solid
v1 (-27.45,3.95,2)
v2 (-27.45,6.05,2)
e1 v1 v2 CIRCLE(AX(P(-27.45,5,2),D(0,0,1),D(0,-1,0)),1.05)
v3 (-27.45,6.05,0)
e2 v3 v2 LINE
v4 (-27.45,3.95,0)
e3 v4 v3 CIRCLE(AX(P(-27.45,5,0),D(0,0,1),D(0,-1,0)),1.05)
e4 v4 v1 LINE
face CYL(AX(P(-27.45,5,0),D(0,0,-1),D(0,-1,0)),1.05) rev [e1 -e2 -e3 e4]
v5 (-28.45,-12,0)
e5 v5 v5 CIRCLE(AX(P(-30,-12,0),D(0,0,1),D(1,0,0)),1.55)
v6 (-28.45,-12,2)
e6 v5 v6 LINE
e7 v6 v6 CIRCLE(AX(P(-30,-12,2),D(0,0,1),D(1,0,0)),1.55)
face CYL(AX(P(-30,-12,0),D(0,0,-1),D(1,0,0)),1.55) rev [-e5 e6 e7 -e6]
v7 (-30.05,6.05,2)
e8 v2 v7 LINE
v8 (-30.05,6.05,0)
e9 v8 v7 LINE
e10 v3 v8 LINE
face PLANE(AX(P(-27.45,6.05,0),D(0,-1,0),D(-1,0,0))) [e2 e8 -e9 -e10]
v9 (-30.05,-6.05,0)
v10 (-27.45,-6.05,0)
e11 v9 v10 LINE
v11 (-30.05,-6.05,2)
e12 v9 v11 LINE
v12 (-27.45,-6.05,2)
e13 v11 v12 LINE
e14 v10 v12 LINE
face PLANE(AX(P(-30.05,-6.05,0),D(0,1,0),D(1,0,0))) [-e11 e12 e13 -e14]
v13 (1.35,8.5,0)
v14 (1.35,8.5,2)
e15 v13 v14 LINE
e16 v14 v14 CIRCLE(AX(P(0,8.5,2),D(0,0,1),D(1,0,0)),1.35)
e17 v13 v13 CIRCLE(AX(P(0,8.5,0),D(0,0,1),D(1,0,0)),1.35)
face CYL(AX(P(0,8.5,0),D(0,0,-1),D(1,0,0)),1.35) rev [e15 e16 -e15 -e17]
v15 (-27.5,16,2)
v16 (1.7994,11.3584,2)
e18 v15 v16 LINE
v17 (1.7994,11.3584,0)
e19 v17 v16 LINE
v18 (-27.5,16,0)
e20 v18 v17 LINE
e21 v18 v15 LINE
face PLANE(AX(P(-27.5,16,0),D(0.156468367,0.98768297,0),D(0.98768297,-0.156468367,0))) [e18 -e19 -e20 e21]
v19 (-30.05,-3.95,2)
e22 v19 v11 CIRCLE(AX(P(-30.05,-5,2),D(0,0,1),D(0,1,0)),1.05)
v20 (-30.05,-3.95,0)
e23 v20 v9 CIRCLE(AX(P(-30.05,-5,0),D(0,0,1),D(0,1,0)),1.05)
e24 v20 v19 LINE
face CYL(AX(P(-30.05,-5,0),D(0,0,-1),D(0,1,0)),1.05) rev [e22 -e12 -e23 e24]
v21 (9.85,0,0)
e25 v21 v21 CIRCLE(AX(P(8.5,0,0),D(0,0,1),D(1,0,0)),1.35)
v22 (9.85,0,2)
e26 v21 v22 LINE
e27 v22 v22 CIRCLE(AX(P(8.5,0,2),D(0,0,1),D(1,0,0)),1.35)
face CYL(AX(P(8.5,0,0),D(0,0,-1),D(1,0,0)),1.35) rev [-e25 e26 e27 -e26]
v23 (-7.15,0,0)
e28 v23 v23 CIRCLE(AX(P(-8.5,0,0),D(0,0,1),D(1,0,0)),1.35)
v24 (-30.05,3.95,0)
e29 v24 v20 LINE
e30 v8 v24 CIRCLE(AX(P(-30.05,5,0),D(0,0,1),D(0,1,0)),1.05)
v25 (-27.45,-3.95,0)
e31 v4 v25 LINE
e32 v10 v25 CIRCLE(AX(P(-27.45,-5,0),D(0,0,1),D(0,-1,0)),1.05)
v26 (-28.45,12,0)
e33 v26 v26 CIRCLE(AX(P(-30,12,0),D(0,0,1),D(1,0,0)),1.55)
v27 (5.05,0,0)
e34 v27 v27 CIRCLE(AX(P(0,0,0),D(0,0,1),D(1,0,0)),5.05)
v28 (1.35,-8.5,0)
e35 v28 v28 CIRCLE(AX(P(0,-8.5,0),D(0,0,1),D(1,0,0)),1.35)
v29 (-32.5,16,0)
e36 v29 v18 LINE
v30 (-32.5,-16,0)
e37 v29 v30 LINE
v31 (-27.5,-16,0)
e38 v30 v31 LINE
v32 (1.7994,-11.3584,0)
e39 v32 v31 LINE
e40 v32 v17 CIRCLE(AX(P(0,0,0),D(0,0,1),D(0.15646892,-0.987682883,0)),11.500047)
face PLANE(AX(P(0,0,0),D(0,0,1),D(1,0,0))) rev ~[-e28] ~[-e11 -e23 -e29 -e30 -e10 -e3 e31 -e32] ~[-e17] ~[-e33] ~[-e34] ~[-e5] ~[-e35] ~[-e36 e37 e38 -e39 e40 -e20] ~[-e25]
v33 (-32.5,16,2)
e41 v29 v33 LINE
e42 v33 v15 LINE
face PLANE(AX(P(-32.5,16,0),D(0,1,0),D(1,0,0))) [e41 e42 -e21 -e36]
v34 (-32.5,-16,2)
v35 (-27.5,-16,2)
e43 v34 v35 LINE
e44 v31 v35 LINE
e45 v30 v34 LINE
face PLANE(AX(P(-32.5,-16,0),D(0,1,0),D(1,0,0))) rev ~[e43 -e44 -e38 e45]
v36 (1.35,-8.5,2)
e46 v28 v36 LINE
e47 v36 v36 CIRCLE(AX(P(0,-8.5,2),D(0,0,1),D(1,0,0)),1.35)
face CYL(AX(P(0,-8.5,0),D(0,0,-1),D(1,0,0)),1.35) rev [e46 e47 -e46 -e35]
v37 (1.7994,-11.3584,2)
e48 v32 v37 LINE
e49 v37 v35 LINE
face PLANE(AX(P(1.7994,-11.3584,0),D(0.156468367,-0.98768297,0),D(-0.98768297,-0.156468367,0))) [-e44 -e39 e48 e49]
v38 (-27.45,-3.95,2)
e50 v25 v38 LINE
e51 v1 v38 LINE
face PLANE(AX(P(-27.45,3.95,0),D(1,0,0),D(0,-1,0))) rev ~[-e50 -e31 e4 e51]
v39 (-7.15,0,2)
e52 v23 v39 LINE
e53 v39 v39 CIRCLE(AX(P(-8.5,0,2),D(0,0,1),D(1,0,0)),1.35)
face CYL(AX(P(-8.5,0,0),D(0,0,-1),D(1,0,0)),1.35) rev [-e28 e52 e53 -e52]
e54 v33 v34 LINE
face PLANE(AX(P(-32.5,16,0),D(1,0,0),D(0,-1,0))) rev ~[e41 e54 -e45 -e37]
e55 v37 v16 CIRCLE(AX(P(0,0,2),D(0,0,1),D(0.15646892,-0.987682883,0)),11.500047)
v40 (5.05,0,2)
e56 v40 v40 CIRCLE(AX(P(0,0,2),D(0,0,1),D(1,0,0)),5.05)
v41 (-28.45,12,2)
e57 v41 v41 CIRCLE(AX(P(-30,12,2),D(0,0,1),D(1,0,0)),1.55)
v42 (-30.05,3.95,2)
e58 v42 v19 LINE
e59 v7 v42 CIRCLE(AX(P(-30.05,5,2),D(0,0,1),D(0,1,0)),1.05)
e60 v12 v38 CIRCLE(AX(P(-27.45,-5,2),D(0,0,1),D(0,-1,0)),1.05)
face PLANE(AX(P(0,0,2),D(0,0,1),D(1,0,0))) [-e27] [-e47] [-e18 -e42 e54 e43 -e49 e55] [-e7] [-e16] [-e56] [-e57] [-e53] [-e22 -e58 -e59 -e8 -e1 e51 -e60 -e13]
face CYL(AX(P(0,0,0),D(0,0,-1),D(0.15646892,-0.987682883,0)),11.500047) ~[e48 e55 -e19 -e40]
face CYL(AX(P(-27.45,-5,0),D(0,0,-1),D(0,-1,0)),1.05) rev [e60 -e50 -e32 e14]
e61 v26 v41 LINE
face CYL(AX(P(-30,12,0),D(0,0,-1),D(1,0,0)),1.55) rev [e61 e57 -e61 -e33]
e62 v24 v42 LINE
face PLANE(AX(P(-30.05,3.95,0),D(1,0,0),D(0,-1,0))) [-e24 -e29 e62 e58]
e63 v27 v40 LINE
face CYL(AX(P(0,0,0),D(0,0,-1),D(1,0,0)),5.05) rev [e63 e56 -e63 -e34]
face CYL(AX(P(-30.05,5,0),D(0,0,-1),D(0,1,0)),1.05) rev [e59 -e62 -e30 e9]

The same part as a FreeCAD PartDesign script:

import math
import FreeCAD as App
import Part
import Sketcher
Q = App.Units.Quantity

doc = App.newDocument("Part")
body = doc.addObject("PartDesign::Body", "Body")

# Sketch on XY plane
sketch1 = body.newObject("Sketcher::SketchObject", "Sketch")
sketch1.AttachmentSupport = (doc.getObject("XY_Plane"), [""])
sketch1.MapMode = "FlatFace"
sketch1.addGeometry([
    Part.LineSegment(App.Vector(-27.5, 16, 0), App.Vector(-32.5, 16, 0)),  # 0
    Part.LineSegment(App.Vector(-32.5, 16, 0), App.Vector(-32.5, -16, 0)),  # 1
    Part.LineSegment(App.Vector(-32.5, -16, 0), App.Vector(-27.5, -16, 0)),  # 2
    Part.LineSegment(App.Vector(-27.5, -16, 0), App.Vector(1.8, -11.4, 0)),  # 3
    Part.ArcOfCircle(Part.Circle(App.Vector(0, 0, 0), App.Vector(0, 0, 1), 11.5), math.radians(-81), math.radians(81)),  # 4
    Part.LineSegment(App.Vector(1.8, 11.4, 0), App.Vector(-27.5, 16, 0)),  # 5
    Part.Circle(App.Vector(-30, -12, 0), App.Vector(0, 0, 1), 1.6),  # 6
    Part.Circle(App.Vector(0, -8.5, 0), App.Vector(0, 0, 1), 1.4),  # 7
    Part.LineSegment(App.Vector(-30.1, 6, 0), App.Vector(-27.4, 6, 0)),  # 8
    Part.ArcOfCircle(Part.Circle(App.Vector(-27.4, 5, 0), App.Vector(0, 0, 1), 1), math.radians(-90), math.radians(90)),  # 9
    Part.LineSegment(App.Vector(-27.4, 4, 0), App.Vector(-27.4, -4, 0)),  # 10
    Part.ArcOfCircle(Part.Circle(App.Vector(-27.4, -5, 0), App.Vector(0, 0, 1), 1), math.radians(-90), math.radians(90)),  # 11
    Part.LineSegment(App.Vector(-27.4, -6, 0), App.Vector(-30.1, -6, 0)),  # 12
    Part.ArcOfCircle(Part.Circle(App.Vector(-30.1, -5, 0), App.Vector(0, 0, 1), 1), math.radians(90), math.radians(270)),  # 13
    Part.LineSegment(App.Vector(-30.1, -4, 0), App.Vector(-30.1, 4, 0)),  # 14
    Part.ArcOfCircle(Part.Circle(App.Vector(-30.1, 5, 0), App.Vector(0, 0, 1), 1.1), math.radians(90), math.radians(270)),  # 15
    Part.Circle(App.Vector(-30, 12, 0), App.Vector(0, 0, 1), 1.6),  # 16
    Part.Circle(App.Vector(-8.5, 0, 0), App.Vector(0, 0, 1), 1.4),  # 17
    Part.Circle(App.Vector(0, 0, 0), App.Vector(0, 0, 1), 5),  # 18
    Part.Circle(App.Vector(8.5, 0, 0), App.Vector(0, 0, 1), 1.4),  # 19
    Part.Circle(App.Vector(0, 8.5, 0), App.Vector(0, 0, 1), 1.4),  # 20
], False)
sketch1.addConstraint([
    Sketcher.Constraint("Coincident", 0, 2, 1, 1),
    Sketcher.Constraint("Coincident", 1, 2, 2, 1),
    Sketcher.Constraint("Coincident", 2, 2, 3, 1),
    Sketcher.Constraint("Tangent", 3, 2, 4, 1),
    Sketcher.Constraint("Tangent", 4, 2, 5, 1),
    Sketcher.Constraint("Coincident", 5, 2, 0, 1),
    Sketcher.Constraint("Tangent", 8, 2, 9, 2),
    Sketcher.Constraint("Coincident", 9, 1, 10, 1),
    Sketcher.Constraint("Coincident", 10, 2, 11, 2),
    Sketcher.Constraint("Tangent", 11, 1, 12, 1),
    Sketcher.Constraint("Tangent", 12, 2, 13, 2),
    Sketcher.Constraint("Coincident", 13, 1, 14, 1),
    Sketcher.Constraint("Coincident", 14, 2, 15, 2),
    Sketcher.Constraint("Tangent", 15, 1, 8, 1),
    Sketcher.Constraint("Horizontal", 0),
    Sketcher.Constraint("Vertical", 1),
    Sketcher.Constraint("Horizontal", 2),
    Sketcher.Constraint("Horizontal", 8),
    Sketcher.Constraint("Vertical", 10),
    Sketcher.Constraint("Horizontal", 12),
    Sketcher.Constraint("Vertical", 14),
    Sketcher.Constraint("Coincident", 4, 3, -1, 1),
    Sketcher.Constraint("Coincident", 18, 3, -1, 1),
    Sketcher.Constraint("Equal", 9, 11),
    Sketcher.Constraint("Equal", 11, 13),
    Sketcher.Constraint("Equal", 13, 15),
    Sketcher.Constraint("Equal", 6, 16),
    Sketcher.Constraint("Equal", 7, 17),
    Sketcher.Constraint("Equal", 17, 19),
    Sketcher.Constraint("Equal", 19, 20),
    Sketcher.Constraint("Symmetric", 17, 3, 19, 3, -1, 1),
    Sketcher.Constraint("Symmetric", 7, 3, 20, 3, -1, 1),
    Sketcher.Constraint("Symmetric", 9, 3, 11, 3, -1),
    Sketcher.Constraint("Symmetric", 6, 3, 16, 3, -1),
    Sketcher.Constraint("Symmetric", 2, 2, 5, 2, -1),
    Sketcher.Constraint("PointOnObject", 7, 3, -2),
    Sketcher.Constraint("PointOnObject", 17, 3, -1),
    Sketcher.Constraint("Vertical", 13, 3, 15, 3),
    Sketcher.Constraint("Vertical", 8, 2, 9, 1),
    Sketcher.Constraint("Vertical", 12, 2, 13, 1),
    Sketcher.Constraint("Diameter", 6, Q("3.1 mm")),
    Sketcher.Constraint("Diameter", 7, Q("2.7 mm")),
    Sketcher.Constraint("Diameter", 18, Q("10.1 mm")),
    Sketcher.Constraint("DistanceX", 0, 2, 0, 1, Q("5 mm")),
    Sketcher.Constraint("DistanceY", 1, 2, 1, 1, Q("32 mm")),
    Sketcher.Constraint("Radius", 9, Q("1.05 mm")),
    Sketcher.Constraint("DistanceY", -1, 1, 9, 3, Q("5 mm")),
    Sketcher.Constraint("DistanceY", 7, 3, -1, 1, Q("8.5 mm")),
    Sketcher.Constraint("DistanceX", 17, 3, -1, 1, Q("8.5 mm")),
    Sketcher.Constraint("DistanceX", 0, 2, -1, 1, Q("32.5 mm")),
    Sketcher.Constraint("Radius", 4, Q("11.5 mm")),
    Sketcher.Constraint("DistanceX", 0, 2, 16, 3, Q("2.5 mm")),
    Sketcher.Constraint("DistanceX", 13, 3, 6, 3, Q("0.05 mm")),
    Sketcher.Constraint("DistanceX", 2, 2, 11, 3, Q("0.05 mm")),
    Sketcher.Constraint("DistanceY", 6, 3, -1, 1, Q("12 mm")),
])
pad1 = body.newObject("PartDesign::Pad", "Pad")
pad1.Profile = sketch1
pad1.Length = 2

doc.recompute()
